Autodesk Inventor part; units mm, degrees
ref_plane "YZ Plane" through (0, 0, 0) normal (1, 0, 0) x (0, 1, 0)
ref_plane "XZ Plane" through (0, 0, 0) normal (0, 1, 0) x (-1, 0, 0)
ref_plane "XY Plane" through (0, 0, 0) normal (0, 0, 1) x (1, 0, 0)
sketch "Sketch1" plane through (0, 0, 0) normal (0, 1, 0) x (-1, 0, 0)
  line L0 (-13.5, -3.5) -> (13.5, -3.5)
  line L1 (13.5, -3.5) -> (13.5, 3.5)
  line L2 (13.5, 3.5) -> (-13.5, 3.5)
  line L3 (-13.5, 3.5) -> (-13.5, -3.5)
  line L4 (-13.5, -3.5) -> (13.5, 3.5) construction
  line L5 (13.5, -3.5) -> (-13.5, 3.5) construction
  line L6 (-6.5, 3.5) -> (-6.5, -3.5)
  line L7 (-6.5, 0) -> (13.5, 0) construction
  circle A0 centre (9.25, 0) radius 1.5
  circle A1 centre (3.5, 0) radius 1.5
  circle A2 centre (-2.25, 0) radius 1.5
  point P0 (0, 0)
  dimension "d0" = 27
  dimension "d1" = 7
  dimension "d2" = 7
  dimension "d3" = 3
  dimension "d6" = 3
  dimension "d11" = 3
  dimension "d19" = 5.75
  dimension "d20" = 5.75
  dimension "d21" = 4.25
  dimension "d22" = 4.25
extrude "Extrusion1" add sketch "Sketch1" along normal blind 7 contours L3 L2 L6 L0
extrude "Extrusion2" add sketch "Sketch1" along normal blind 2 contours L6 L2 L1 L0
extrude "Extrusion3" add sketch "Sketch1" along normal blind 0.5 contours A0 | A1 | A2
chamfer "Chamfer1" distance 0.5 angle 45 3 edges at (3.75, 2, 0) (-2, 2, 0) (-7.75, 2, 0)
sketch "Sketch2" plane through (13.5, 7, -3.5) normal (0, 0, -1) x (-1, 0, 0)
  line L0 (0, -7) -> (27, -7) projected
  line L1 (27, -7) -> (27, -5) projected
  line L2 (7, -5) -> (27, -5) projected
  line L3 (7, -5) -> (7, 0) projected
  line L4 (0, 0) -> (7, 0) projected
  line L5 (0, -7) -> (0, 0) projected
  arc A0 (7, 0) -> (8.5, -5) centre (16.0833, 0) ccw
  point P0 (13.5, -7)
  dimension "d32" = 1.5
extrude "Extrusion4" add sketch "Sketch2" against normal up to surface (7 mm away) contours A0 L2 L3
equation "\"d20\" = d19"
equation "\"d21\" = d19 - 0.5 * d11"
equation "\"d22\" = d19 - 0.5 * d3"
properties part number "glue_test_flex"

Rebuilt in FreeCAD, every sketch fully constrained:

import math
import FreeCAD as App
import Part
import Sketcher

V = App.Vector


def edges_at(feature, points):
    """Names of the edges that pass closest to the given points."""
    edges = feature.Shape.Edges
    near = lambda p: min(range(len(edges)), key=lambda i: edges[i].distToShape(Part.Vertex(*p))[0])
    return sorted({f"Edge{near(p) + 1}" for p in points})

doc = App.newDocument("Part")
params = doc.addObject("Spreadsheet::Sheet", "Params")
for row, (alias, value) in enumerate([
    ("sketch1_width", "7 mm"),
    ("pad1_length", "7 mm"),
    ("sketch2_diameter", "3 mm"),
    ("sketch2_height", "7 mm"),
    ("sketch2_width", "20 mm"),
    ("pad2_length", "2 mm"),
    ("sketch3_diameter", "3 mm"),
    ("pad3_length", "0.5 mm"),
    ("chamfer_size", "0.5 mm"),
    ("sketch4_width", "1.5 mm"),
    ("sketch4_height", "5 mm"),
    ("pad4_length", "7 mm"),
], start=1):
    params.set(f"A{row}", alias)
    params.set(f"B{row}", "=" + value)
    params.setAlias(f"B{row}", alias)

body = doc.addObject("PartDesign::Body", "Body")

# Sketch on XZ plane
sketch1 = body.newObject("Sketcher::SketchObject", "Sketch")
sketch1.AttachmentSupport = (doc.getObject("XZ_Plane"), [""])
sketch1.MapMode = "FlatFace"
sketch1.addGeometry([
    Part.LineSegment(V(14, 4, 0), V(14, -4, 0)),
    Part.LineSegment(V(14, -4, 0), V(6, -4, 0)),
    Part.LineSegment(V(6, -4, 0), V(6, 4, 0)),
    Part.LineSegment(V(6, 4, 0), V(14, 4, 0)),
], False)
sketch1.addConstraint([
    Sketcher.Constraint("Coincident", 0, 2, 1, 1),
    Sketcher.Constraint("Coincident", 1, 2, 2, 1),
    Sketcher.Constraint("Coincident", 2, 2, 3, 1),
    Sketcher.Constraint("Coincident", 3, 2, 0, 1),
    Sketcher.Constraint("Vertical", 0),
    Sketcher.Constraint("Horizontal", 1),
    Sketcher.Constraint("Vertical", 2),
    Sketcher.Constraint("Horizontal", 3),
    Sketcher.Constraint("Equal", 3, 0),
    Sketcher.Constraint("DistanceX", 1, 2, 1, 1, 7.0),
    Sketcher.Constraint("DistanceX", -1, 1, 0, 2, 13.5),
    Sketcher.Constraint("DistanceY", 0, 2, -1, 1, 3.5),
])
sketch1.setExpression("Constraints[9]", "Params.sketch1_width")
pad1 = body.newObject("PartDesign::Pad", "Pad")
pad1.Profile = sketch1
pad1.setExpression("Length", "Params.pad1_length")
pad1.Reversed = True

# Sketch on XZ plane
sketch2 = body.newObject("Sketcher::SketchObject", "Sketch001")
sketch2.AttachmentSupport = (doc.getObject("XZ_Plane"), [""])
sketch2.MapMode = "FlatFace"
sketch2.addGeometry([
    Part.LineSegment(V(6.5, 3.5, 0), V(6.5, -3.5, 0)),  # 0
    Part.LineSegment(V(6.5, -3.5, 0), V(-13.5, -3.5, 0)),  # 1
    Part.LineSegment(V(-13.5, -3.5, 0), V(-13.5, 3.5, 0)),  # 2
    Part.LineSegment(V(-13.5, 3.5, 0), V(6.5, 3.5, 0)),  # 3
    Part.Circle(V(2.2, 0, 0), V(0, 0, 1), 1.5),  # 4
    Part.Circle(V(-3.5, 0, 0), V(0, 0, 1), 1.5),  # 5
    Part.Circle(V(-9.2, 0, 0), V(0, 0, 1), 1.5),  # 6
], False)
sketch2.addConstraint([
    Sketcher.Constraint("Coincident", 0, 2, 1, 1),
    Sketcher.Constraint("Coincident", 1, 2, 2, 1),
    Sketcher.Constraint("Coincident", 2, 2, 3, 1),
    Sketcher.Constraint("Coincident", 3, 2, 0, 1),
    Sketcher.Constraint("Vertical", 0),
    Sketcher.Constraint("Horizontal", 1),
    Sketcher.Constraint("Vertical", 2),
    Sketcher.Constraint("Horizontal", 3),
    Sketcher.Constraint("Equal", 4, 5),
    Sketcher.Constraint("Equal", 5, 6),
    Sketcher.Constraint("PointOnObject", 4, 3, -1),
    Sketcher.Constraint("PointOnObject", 5, 3, -1),
    Sketcher.Constraint("PointOnObject", 6, 3, -1),
    Sketcher.Constraint("Diameter", 4, 3.0),
    Sketcher.Constraint("DistanceY", 0, 2, 0, 1, 7.0),
    Sketcher.Constraint("DistanceX", 1, 2, 1, 1, 20.0),
    Sketcher.Constraint("DistanceX", 5, 3, 4, 3, 5.75),
    Sketcher.Constraint("DistanceX", 6, 3, 5, 3, 5.75),
    Sketcher.Constraint("DistanceX", 4, 3, 0, 2, 4.25),
    Sketcher.Constraint("DistanceX", 5, 3, -1, 1, 3.5),
    Sketcher.Constraint("DistanceY", 0, 2, -1, 1, 3.5),
])
sketch2.setExpression("Constraints[13]", "Params.sketch2_diameter")
sketch2.setExpression("Constraints[14]", "Params.sketch2_height")
sketch2.setExpression("Constraints[15]", "Params.sketch2_width")
pad2 = body.newObject("PartDesign::Pad", "Pad001")
pad2.Profile = sketch2
pad2.setExpression("Length", "Params.pad2_length")
pad2.Reversed = True

# Sketch on XZ plane
sketch3 = body.newObject("Sketcher::SketchObject", "Sketch002")
sketch3.AttachmentSupport = (doc.getObject("XZ_Plane"), [""])
sketch3.MapMode = "FlatFace"
sketch3.addGeometry([
    Part.Circle(V(-9.2, 0, 0), V(0, 0, 1), 1.5),
    Part.Circle(V(-3.5, 0, 0), V(0, 0, 1), 1.5),
    Part.Circle(V(2.2, 0, 0), V(0, 0, 1), 1.5),
], False)
sketch3.addConstraint([
    Sketcher.Constraint("Equal", 0, 1),
    Sketcher.Constraint("Equal", 1, 2),
    Sketcher.Constraint("PointOnObject", 0, 3, -1),
    Sketcher.Constraint("PointOnObject", 1, 3, -1),
    Sketcher.Constraint("PointOnObject", 2, 3, -1),
    Sketcher.Constraint("Diameter", 0, 3.0),
    Sketcher.Constraint("DistanceX", 0, 3, 1, 3, 5.75),
    Sketcher.Constraint("DistanceX", 1, 3, 2, 3, 5.75),
    Sketcher.Constraint("DistanceX", 1, 3, -1, 1, 3.5),
])
sketch3.setExpression("Constraints[5]", "Params.sketch3_diameter")
pad3 = body.newObject("PartDesign::Pad", "Pad002")
pad3.Profile = sketch3
pad3.setExpression("Length", "Params.pad3_length")
pad3.Reversed = True
doc.recompute()

chamfer = body.newObject("PartDesign::Chamfer", "Chamfer")
chamfer.Base = (pad3, edges_at(pad3, [(3.75, 2, 0), (-2, 2, 0), (-7.75, 2, 0)]))
chamfer.setExpression("Size", "Params.chamfer_size")

# Sketch on XY plane
sketch4 = body.newObject("Sketcher::SketchObject", "Sketch003")
sketch4.AttachmentSupport = (doc.getObject("XY_Plane"), [""])
sketch4.MapMode = "FlatFace"
sketch4.AttachmentOffset = App.Placement(V(0, 0, -3.5), App.Rotation())
sketch4.addGeometry([
    Part.ArcOfCircle(Part.Circle(V(-2.6, 7, 0), V(0, 0, 1), 9.1), math.radians(-33), math.radians(0)),
    Part.LineSegment(V(6.5, 7, 0), V(6.5, 2, 0)),
    Part.LineSegment(V(6.5, 2, 0), V(5, 2, 0)),
], False)
sketch4.addConstraint([
    Sketcher.Constraint("Tangent", 0, 2, 1, 1),
    Sketcher.Constraint("Coincident", 1, 2, 2, 1),
    Sketcher.Constraint("Coincident", 2, 2, 0, 1),
    Sketcher.Constraint("Vertical", 1),
    Sketcher.Constraint("Horizontal", 2),
    Sketcher.Constraint("DistanceX", 2, 2, 2, 1, 1.5),
    Sketcher.Constraint("DistanceY", 1, 2, 1, 1, 5.0),
    Sketcher.Constraint("DistanceY", -1, 1, 0, 3, 7.0),
    Sketcher.Constraint("DistanceX", -1, 1, 2, 2, 5.0),
])
sketch4.setExpression("Constraints[5]", "Params.sketch4_width")
sketch4.setExpression("Constraints[6]", "Params.sketch4_height")
pad4 = body.newObject("PartDesign::Pad", "Pad003")
pad4.Profile = sketch4
pad4.setExpression("Length", "Params.pad4_length")

doc.recompute()
